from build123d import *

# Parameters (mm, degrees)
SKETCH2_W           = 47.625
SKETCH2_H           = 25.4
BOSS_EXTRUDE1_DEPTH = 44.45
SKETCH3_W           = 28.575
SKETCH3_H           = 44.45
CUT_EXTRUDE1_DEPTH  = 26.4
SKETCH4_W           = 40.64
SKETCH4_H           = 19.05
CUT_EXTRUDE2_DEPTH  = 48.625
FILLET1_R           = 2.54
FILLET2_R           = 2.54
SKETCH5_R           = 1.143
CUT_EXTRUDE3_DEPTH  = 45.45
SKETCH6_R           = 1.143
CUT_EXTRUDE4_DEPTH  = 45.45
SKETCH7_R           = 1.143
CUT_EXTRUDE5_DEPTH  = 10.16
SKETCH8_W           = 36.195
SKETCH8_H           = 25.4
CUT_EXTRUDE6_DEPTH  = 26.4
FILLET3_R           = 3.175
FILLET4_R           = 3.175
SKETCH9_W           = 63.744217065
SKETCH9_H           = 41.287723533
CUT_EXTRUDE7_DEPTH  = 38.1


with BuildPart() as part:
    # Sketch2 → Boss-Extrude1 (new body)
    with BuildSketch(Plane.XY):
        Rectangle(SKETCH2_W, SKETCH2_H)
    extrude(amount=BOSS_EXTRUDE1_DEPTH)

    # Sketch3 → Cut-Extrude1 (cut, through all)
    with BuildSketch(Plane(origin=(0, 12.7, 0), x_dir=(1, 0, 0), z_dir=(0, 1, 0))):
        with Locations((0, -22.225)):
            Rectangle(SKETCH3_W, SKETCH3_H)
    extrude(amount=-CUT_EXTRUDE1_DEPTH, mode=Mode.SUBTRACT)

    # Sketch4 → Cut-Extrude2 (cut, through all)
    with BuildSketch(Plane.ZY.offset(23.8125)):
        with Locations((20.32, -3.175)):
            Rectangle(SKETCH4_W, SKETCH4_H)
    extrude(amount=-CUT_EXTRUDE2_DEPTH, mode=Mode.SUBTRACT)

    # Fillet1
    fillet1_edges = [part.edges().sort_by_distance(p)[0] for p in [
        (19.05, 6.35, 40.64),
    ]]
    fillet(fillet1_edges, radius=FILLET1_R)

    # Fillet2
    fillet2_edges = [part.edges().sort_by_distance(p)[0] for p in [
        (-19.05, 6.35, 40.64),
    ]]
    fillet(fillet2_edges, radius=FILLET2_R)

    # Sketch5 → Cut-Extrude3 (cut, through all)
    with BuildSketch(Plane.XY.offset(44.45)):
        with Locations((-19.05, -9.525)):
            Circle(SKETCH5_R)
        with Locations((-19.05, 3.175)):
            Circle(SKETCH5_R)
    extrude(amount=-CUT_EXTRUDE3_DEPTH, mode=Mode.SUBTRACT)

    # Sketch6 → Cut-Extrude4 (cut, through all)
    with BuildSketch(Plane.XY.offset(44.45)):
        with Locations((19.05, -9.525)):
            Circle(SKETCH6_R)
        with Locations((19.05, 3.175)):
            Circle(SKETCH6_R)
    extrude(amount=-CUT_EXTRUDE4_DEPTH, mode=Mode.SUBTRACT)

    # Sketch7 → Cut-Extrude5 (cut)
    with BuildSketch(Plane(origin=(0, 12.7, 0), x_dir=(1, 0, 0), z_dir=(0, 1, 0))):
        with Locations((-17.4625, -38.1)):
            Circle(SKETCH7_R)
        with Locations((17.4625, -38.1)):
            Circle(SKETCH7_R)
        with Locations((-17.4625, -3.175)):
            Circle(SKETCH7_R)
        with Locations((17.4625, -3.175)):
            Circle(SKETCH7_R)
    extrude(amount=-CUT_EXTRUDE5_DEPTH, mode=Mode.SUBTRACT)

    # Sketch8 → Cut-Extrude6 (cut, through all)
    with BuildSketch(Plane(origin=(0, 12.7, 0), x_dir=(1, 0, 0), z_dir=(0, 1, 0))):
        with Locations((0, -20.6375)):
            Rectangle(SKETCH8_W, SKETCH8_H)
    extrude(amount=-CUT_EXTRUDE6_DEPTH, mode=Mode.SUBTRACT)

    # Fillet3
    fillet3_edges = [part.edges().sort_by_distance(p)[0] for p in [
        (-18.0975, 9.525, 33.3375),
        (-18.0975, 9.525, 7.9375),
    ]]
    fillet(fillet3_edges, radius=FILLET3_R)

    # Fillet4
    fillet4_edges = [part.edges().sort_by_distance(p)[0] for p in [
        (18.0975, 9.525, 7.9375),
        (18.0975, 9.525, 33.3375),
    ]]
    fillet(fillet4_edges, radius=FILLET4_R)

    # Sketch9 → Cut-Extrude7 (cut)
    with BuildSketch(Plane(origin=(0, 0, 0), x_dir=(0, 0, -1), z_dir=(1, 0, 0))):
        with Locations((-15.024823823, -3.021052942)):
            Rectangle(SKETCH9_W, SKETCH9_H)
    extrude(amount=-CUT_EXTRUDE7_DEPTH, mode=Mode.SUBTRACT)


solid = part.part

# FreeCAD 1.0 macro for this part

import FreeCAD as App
import Part
import Sketcher
Q = App.Units.Quantity


def edges_at(feature, points):
    """Names of the edges that pass closest to the given points."""
    edges = feature.Shape.Edges
    near = lambda p: min(range(len(edges)), key=lambda i: edges[i].distToShape(Part.Vertex(*p))[0])
    return sorted({f"Edge{near(p) + 1}" for p in points})

doc = App.newDocument("Part")
body = doc.addObject("PartDesign::Body", "Body")
body.AllowCompound = True

sketch1 = body.newObject("Sketcher::SketchObject", "Sketch")
sketch1.AttachmentSupport = (doc.getObject("XY_Plane"), [""])
sketch1.MapMode = "FlatFace"
sketch1.addGeometry(Part.LineSegment(App.Vector(-23.8125, 12.7, 0), App.Vector(-23.8125, -12.7, 0)), False)
sketch1.addGeometry(Part.LineSegment(App.Vector(-23.8125, -12.7, 0), App.Vector(23.8125, -12.7, 0)), False)
sketch1.addGeometry(Part.LineSegment(App.Vector(23.8125, -12.7, 0), App.Vector(23.8125, 12.7, 0)), False)
sketch1.addGeometry(Part.LineSegment(App.Vector(23.8125, 12.7, 0), App.Vector(-23.8125, 12.7, 0)), False)
sketch1.addConstraint(Sketcher.Constraint("Coincident", 0, 2, 1, 1))
sketch1.addConstraint(Sketcher.Constraint("Coincident", 1, 2, 2, 1))
sketch1.addConstraint(Sketcher.Constraint("Coincident", 2, 2, 3, 1))
sketch1.addConstraint(Sketcher.Constraint("Coincident", 3, 2, 0, 1))
sketch1.addConstraint(Sketcher.Constraint("Vertical", 0))
sketch1.addConstraint(Sketcher.Constraint("Horizontal", 1))
sketch1.addConstraint(Sketcher.Constraint("Vertical", 2))
sketch1.addConstraint(Sketcher.Constraint("Horizontal", 3))
sketch1.addConstraint(Sketcher.Constraint("Symmetric", 0, 2, 2, 2, -1, 1))
sketch1.addConstraint(Sketcher.Constraint("DistanceY", 0, 2, 0, 1, Q("1 in")))
sketch1.addConstraint(Sketcher.Constraint("DistanceX", 1, 1, 1, 2, Q("1.875 in")))
pad1 = body.newObject("PartDesign::Pad", "Pad")
pad1.Profile = sketch1
pad1.Length = Q("1.75 in")

sketch2 = body.newObject("Sketcher::SketchObject", "Sketch001")
sketch2.AttachmentSupport = (doc.getObject("XZ_Plane"), [""])
sketch2.MapMode = "FlatFace"
sketch2.AttachmentOffset = App.Placement(App.Vector(0, 0, -0.5 * 25.4), App.Rotation())
sketch2.addGeometry(Part.LineSegment(App.Vector(-14.2875, 0, 0), App.Vector(-14.2875, 44.45, 0)), False)
sketch2.addGeometry(Part.LineSegment(App.Vector(-14.2875, 44.45, 0), App.Vector(14.2875, 44.45, 0)), False)
sketch2.addGeometry(Part.LineSegment(App.Vector(14.2875, 44.45, 0), App.Vector(14.2875, 0, 0)), False)
sketch2.addGeometry(Part.LineSegment(App.Vector(14.2875, 0, 0), App.Vector(-14.2875, 0, 0)), False)
sketch2.addConstraint(Sketcher.Constraint("Coincident", 0, 2, 1, 1))
sketch2.addConstraint(Sketcher.Constraint("Coincident", 1, 2, 2, 1))
sketch2.addConstraint(Sketcher.Constraint("Coincident", 2, 2, 3, 1))
sketch2.addConstraint(Sketcher.Constraint("Coincident", 3, 2, 0, 1))
sketch2.addConstraint(Sketcher.Constraint("Vertical", 0))
sketch2.addConstraint(Sketcher.Constraint("Horizontal", 1))
sketch2.addConstraint(Sketcher.Constraint("Vertical", 2))
sketch2.addConstraint(Sketcher.Constraint("Horizontal", 3))
sketch2.addConstraint(Sketcher.Constraint("Symmetric", 2, 2, 3, 2, -1, 1))
sketch2.addConstraint(Sketcher.Constraint("DistanceY", 0, 1, 0, 2, Q("1.75 in")))
sketch2.addConstraint(Sketcher.Constraint("DistanceX", 1, 1, 1, 2, Q("1.125 in")))
pocket1 = body.newObject("PartDesign::Pocket", "Pocket")
pocket1.Profile = sketch2
pocket1.Type = "ThroughAll"
pocket1.Reversed = True

sketch3 = body.newObject("Sketcher::SketchObject", "Sketch002")
sketch3.AttachmentSupport = (doc.getObject("YZ_Plane"), [""])
sketch3.MapMode = "FlatFace"
sketch3.AttachmentOffset = App.Placement(App.Vector(0, 0, -0.9375 * 25.4), App.Rotation())
sketch3.addGeometry(Part.LineSegment(App.Vector(6.35, 0, 0), App.Vector(-12.7, 0, 0)), False)
sketch3.addGeometry(Part.LineSegment(App.Vector(-12.7, 0, 0), App.Vector(-12.7, 40.64, 0)), False)
sketch3.addGeometry(Part.LineSegment(App.Vector(-12.7, 40.64, 0), App.Vector(6.35, 40.64, 0)), False)
sketch3.addGeometry(Part.LineSegment(App.Vector(6.35, 40.64, 0), App.Vector(6.35, 0, 0)), False)
sketch3.addConstraint(Sketcher.Constraint("Coincident", 0, 2, 1, 1))
sketch3.addConstraint(Sketcher.Constraint("Coincident", 1, 2, 2, 1))
sketch3.addConstraint(Sketcher.Constraint("Coincident", 2, 2, 3, 1))
sketch3.addConstraint(Sketcher.Constraint("Coincident", 3, 2, 0, 1))
sketch3.addConstraint(Sketcher.Constraint("Horizontal", 0))
sketch3.addConstraint(Sketcher.Constraint("Vertical", 1))
sketch3.addConstraint(Sketcher.Constraint("Horizontal", 2))
sketch3.addConstraint(Sketcher.Constraint("Vertical", 3))
sketch3.addConstraint(Sketcher.Constraint("PointOnObject", 0, 2, -1))
sketch3.addConstraint(Sketcher.Constraint("DistanceY", 1, 1, 1, 2, Q("1.6 in")))
sketch3.addConstraint(Sketcher.Constraint("DistanceX", 0, 2, 0, 1, Q("0.75 in")))
sketch3.addConstraint(Sketcher.Constraint("DistanceX", 0, 2, -1, 1, Q("0.5 in")))
pocket2 = body.newObject("PartDesign::Pocket", "Pocket001")
pocket2.Profile = sketch3
pocket2.Type = "ThroughAll"
pocket2.Reversed = True
doc.recompute()

fillet = body.newObject("PartDesign::Fillet", "Fillet")
fillet.Base = (pocket2, edges_at(pocket2, [(19.05, 6.35, 40.64)]))
fillet.Radius = Q("0.1 in")
doc.recompute()

fillet2 = body.newObject("PartDesign::Fillet", "Fillet001")
fillet2.Base = (fillet, edges_at(fillet, [(-19.05, 6.35, 40.64)]))
fillet2.Radius = Q("0.1 in")

sketch4 = body.newObject("Sketcher::SketchObject", "Sketch003")
sketch4.AttachmentSupport = (doc.getObject("XY_Plane"), [""])
sketch4.MapMode = "FlatFace"
sketch4.AttachmentOffset = App.Placement(App.Vector(0, 0, 1.75 * 25.4), App.Rotation())
sketch4.addGeometry(Part.Circle(App.Vector(-19.05, -9.525, 0), App.Vector(0, 0, 1), 1.143), False)
sketch4.addGeometry(Part.Circle(App.Vector(-19.05, 3.175, 0), App.Vector(0, 0, 1), 1.143), False)
sketch4.addConstraint(Sketcher.Constraint("Equal", 0, 1))
sketch4.addConstraint(Sketcher.Constraint("Vertical", 0, 3, 1, 3))
sketch4.addConstraint(Sketcher.Constraint("Diameter", 0, Q("0.09 in")))
sketch4.addConstraint(Sketcher.Constraint("DistanceY", 0, 3, 1, 3, Q("0.5 in")))
sketch4.addConstraint(Sketcher.Constraint("DistanceX", 0, 3, -1, 1, Q("0.75 in")))
sketch4.addConstraint(Sketcher.Constraint("DistanceY", 0, 3, -1, 1, Q("0.375 in")))
pocket3 = body.newObject("PartDesign::Pocket", "Pocket002")
pocket3.Profile = sketch4
pocket3.Type = "ThroughAll"

sketch5 = body.newObject("Sketcher::SketchObject", "Sketch004")
sketch5.AttachmentSupport = (doc.getObject("XY_Plane"), [""])
sketch5.MapMode = "FlatFace"
sketch5.AttachmentOffset = App.Placement(App.Vector(0, 0, 1.75 * 25.4), App.Rotation())
sketch5.addGeometry(Part.Circle(App.Vector(19.05, -9.525, 0), App.Vector(0, 0, 1), 1.143), False)
sketch5.addGeometry(Part.Circle(App.Vector(19.05, 3.175, 0), App.Vector(0, 0, 1), 1.143), False)
sketch5.addConstraint(Sketcher.Constraint("Equal", 0, 1))
sketch5.addConstraint(Sketcher.Constraint("Vertical", 0, 3, 1, 3))
sketch5.addConstraint(Sketcher.Constraint("Diameter", 0, Q("0.09 in")))
sketch5.addConstraint(Sketcher.Constraint("DistanceY", 0, 3, 1, 3, Q("0.5 in")))
sketch5.addConstraint(Sketcher.Constraint("DistanceX", -1, 1, 0, 3, Q("0.75 in")))
sketch5.addConstraint(Sketcher.Constraint("DistanceY", 0, 3, -1, 1, Q("0.375 in")))
pocket4 = body.newObject("PartDesign::Pocket", "Pocket003")
pocket4.Profile = sketch5
pocket4.Type = "ThroughAll"

sketch6 = body.newObject("Sketcher::SketchObject", "Sketch005")
sketch6.AttachmentSupport = (doc.getObject("XZ_Plane"), [""])
sketch6.MapMode = "FlatFace"
sketch6.AttachmentOffset = App.Placement(App.Vector(0, 0, -0.5 * 25.4), App.Rotation())
sketch6.addGeometry(Part.Circle(App.Vector(-17.4625, 38.1, 0), App.Vector(0, 0, 1), 1.143), False)
sketch6.addGeometry(Part.Circle(App.Vector(17.4625, 38.1, 0), App.Vector(0, 0, 1), 1.143), False)
sketch6.addGeometry(Part.Circle(App.Vector(-17.4625, 3.175, 0), App.Vector(0, 0, 1), 1.143), False)
sketch6.addGeometry(Part.Circle(App.Vector(17.4625, 3.175, 0), App.Vector(0, 0, 1), 1.143), False)
sketch6.addConstraint(Sketcher.Constraint("Equal", 0, 1))
sketch6.addConstraint(Sketcher.Constraint("Equal", 1, 2))
sketch6.addConstraint(Sketcher.Constraint("Equal", 2, 3))
sketch6.addConstraint(Sketcher.Constraint("Symmetric", 0, 3, 1, 3, -2))
sketch6.addConstraint(Sketcher.Constraint("Symmetric", 2, 3, 3, 3, -2))
sketch6.addConstraint(Sketcher.Constraint("Vertical", 0, 3, 2, 3))
sketch6.addConstraint(Sketcher.Constraint("Diameter", 0, Q("0.09 in")))
sketch6.addConstraint(Sketcher.Constraint("DistanceY", -1, 1, 0, 3, Q("1.5 in")))
sketch6.addConstraint(Sketcher.Constraint("DistanceX", 0, 3, -1, 1, Q("0.6875 in")))
sketch6.addConstraint(Sketcher.Constraint("DistanceY", -1, 1, 2, 3, Q("0.125 in")))
pocket5 = body.newObject("PartDesign::Pocket", "Pocket004")
pocket5.Profile = sketch6
pocket5.Length = Q("0.4 in")
pocket5.Reversed = True

sketch7 = body.newObject("Sketcher::SketchObject", "Sketch006")
sketch7.AttachmentSupport = (doc.getObject("XZ_Plane"), [""])
sketch7.MapMode = "FlatFace"
sketch7.AttachmentOffset = App.Placement(App.Vector(0, 0, -0.5 * 25.4), App.Rotation())
sketch7.addGeometry(Part.LineSegment(App.Vector(-18.0975, 7.9375, 0), App.Vector(-18.0975, 33.3375, 0)), False)
sketch7.addGeometry(Part.LineSegment(App.Vector(-18.0975, 33.3375, 0), App.Vector(18.0975, 33.3375, 0)), False)
sketch7.addGeometry(Part.LineSegment(App.Vector(18.0975, 33.3375, 0), App.Vector(18.0975, 7.9375, 0)), False)
sketch7.addGeometry(Part.LineSegment(App.Vector(18.0975, 7.9375, 0), App.Vector(-18.0975, 7.9375, 0)), False)
sketch7.addConstraint(Sketcher.Constraint("Coincident", 0, 2, 1, 1))
sketch7.addConstraint(Sketcher.Constraint("Coincident", 1, 2, 2, 1))
sketch7.addConstraint(Sketcher.Constraint("Coincident", 2, 2, 3, 1))
sketch7.addConstraint(Sketcher.Constraint("Coincident", 3, 2, 0, 1))
sketch7.addConstraint(Sketcher.Constraint("Vertical", 0))
sketch7.addConstraint(Sketcher.Constraint("Horizontal", 1))
sketch7.addConstraint(Sketcher.Constraint("Vertical", 2))
sketch7.addConstraint(Sketcher.Constraint("Horizontal", 3))
sketch7.addConstraint(Sketcher.Constraint("DistanceY", 0, 1, 0, 2, Q("1 in")))
sketch7.addConstraint(Sketcher.Constraint("DistanceX", 1, 1, 1, 2, Q("1.425 in")))
sketch7.addConstraint(Sketcher.Constraint("DistanceY", -1, 1, 0, 2, Q("1.3125 in")))
sketch7.addConstraint(Sketcher.Constraint("DistanceX", 0, 2, -1, 1, Q("0.7125 in")))
pocket6 = body.newObject("PartDesign::Pocket", "Pocket005")
pocket6.Profile = sketch7
pocket6.Type = "ThroughAll"
pocket6.Reversed = True
doc.recompute()

fillet3 = body.newObject("PartDesign::Fillet", "Fillet002")
fillet3.Base = (pocket6, edges_at(pocket6, [(-18.098, 9.525, 33.337), (-18.098, 9.525, 7.938)]))
fillet3.Radius = Q("0.125 in")
doc.recompute()

fillet4 = body.newObject("PartDesign::Fillet", "Fillet003")
fillet4.Base = (fillet3, edges_at(fillet3, [(18.098, 9.525, 7.938), (18.098, 9.525, 33.337)]))
fillet4.Radius = Q("0.125 in")

sketch8 = body.newObject("Sketcher::SketchObject", "Sketch007")
sketch8.AttachmentSupport = (doc.getObject("YZ_Plane"), [""])
sketch8.MapMode = "FlatFace"
sketch8.addGeometry(Part.LineSegment(App.Vector(17.622809, 46.896932, 0), App.Vector(-23.664915, 46.896932, 0)), False)
sketch8.addGeometry(Part.LineSegment(App.Vector(-23.664915, 46.896932, 0), App.Vector(-23.664915, -16.847285, 0)), False)
sketch8.addGeometry(Part.LineSegment(App.Vector(-23.664915, -16.847285, 0), App.Vector(17.622809, -16.847285, 0)), False)
sketch8.addGeometry(Part.LineSegment(App.Vector(17.622809, -16.847285, 0), App.Vector(17.622809, 46.896932, 0)), False)
sketch8.addConstraint(Sketcher.Constraint("Coincident", 0, 2, 1, 1))
sketch8.addConstraint(Sketcher.Constraint("Coincident", 1, 2, 2, 1))
sketch8.addConstraint(Sketcher.Constraint("Coincident", 2, 2, 3, 1))
sketch8.addConstraint(Sketcher.Constraint("Coincident", 3, 2, 0, 1))
sketch8.addConstraint(Sketcher.Constraint("Horizontal", 0))
sketch8.addConstraint(Sketcher.Constraint("Vertical", 1))
sketch8.addConstraint(Sketcher.Constraint("Horizontal", 2))
sketch8.addConstraint(Sketcher.Constraint("Vertical", 3))
sketch8.addConstraint(Sketcher.Constraint("DistanceX", 0, 2, 0, 1, Q("41.287724 mm")))
sketch8.addConstraint(Sketcher.Constraint("DistanceY", 1, 2, 1, 1, Q("63.744217 mm")))
sketch8.addConstraint(Sketcher.Constraint("DistanceX", -1, 1, 2, 2, Q("17.622809 mm")))
sketch8.addConstraint(Sketcher.Constraint("DistanceY", -1, 1, 0, 2, Q("46.896932 mm")))
pocket7 = body.newObject("PartDesign::Pocket", "Pocket006")
pocket7.Profile = sketch8
pocket7.Length = Q("1.5 in")

doc.recompute()
